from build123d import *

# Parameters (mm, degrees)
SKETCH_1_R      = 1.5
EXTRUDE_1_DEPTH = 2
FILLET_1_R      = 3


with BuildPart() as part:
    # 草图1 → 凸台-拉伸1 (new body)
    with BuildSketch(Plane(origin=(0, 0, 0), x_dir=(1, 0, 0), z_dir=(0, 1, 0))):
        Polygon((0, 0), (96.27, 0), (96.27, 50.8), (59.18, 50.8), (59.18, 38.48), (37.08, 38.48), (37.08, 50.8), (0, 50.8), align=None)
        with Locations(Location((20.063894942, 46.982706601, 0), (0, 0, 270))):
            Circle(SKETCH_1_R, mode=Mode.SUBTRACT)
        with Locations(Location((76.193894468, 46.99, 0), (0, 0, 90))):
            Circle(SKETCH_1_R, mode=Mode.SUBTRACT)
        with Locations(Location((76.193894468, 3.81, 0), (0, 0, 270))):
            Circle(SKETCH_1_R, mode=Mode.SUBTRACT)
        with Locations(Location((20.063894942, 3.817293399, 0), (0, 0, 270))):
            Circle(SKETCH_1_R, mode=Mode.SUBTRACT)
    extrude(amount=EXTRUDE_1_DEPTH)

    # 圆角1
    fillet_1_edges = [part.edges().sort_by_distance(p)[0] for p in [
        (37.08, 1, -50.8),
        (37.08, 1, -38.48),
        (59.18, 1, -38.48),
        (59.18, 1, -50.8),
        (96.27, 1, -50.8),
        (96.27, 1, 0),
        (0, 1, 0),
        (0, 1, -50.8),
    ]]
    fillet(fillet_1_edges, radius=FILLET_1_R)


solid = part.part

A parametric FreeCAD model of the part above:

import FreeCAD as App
import Part
import Sketcher
Q = App.Units.Quantity


def edges_at(feature, points):
    """Names of the edges that pass closest to the given points."""
    edges = feature.Shape.Edges
    near = lambda p: min(range(len(edges)), key=lambda i: edges[i].distToShape(Part.Vertex(*p))[0])
    return sorted({f"Edge{near(p) + 1}" for p in points})

doc = App.newDocument("Part")
body = doc.addObject("PartDesign::Body", "Body")

# Sketch on XZ plane
sketch1 = body.newObject("Sketcher::SketchObject", "Sketch")
sketch1.AttachmentSupport = (doc.getObject("XZ_Plane"), [""])
sketch1.MapMode = "FlatFace"
sketch1.addGeometry([
    Part.LineSegment(App.Vector(0, 0, 0), App.Vector(96.27, 0, 0)),  # 0
    Part.LineSegment(App.Vector(96.27, 0, 0), App.Vector(96.27, -50.8, 0)),  # 1
    Part.LineSegment(App.Vector(96.27, -50.8, 0), App.Vector(59.18, -50.8, 0)),  # 2
    Part.LineSegment(App.Vector(59.18, -50.8, 0), App.Vector(59.18, -38.48, 0)),  # 3
    Part.LineSegment(App.Vector(59.18, -38.48, 0), App.Vector(37.08, -38.48, 0)),  # 4
    Part.LineSegment(App.Vector(37.08, -38.48, 0), App.Vector(37.08, -50.8, 0)),  # 5
    Part.LineSegment(App.Vector(37.08, -50.8, 0), App.Vector(0, -50.8, 0)),  # 6
    Part.LineSegment(App.Vector(0, -50.8, 0), App.Vector(0, 0, 0)),  # 7
    Part.Circle(App.Vector(20.063895, -3.817293, 0), App.Vector(0, 0, 1), 1.5),  # 8
    Part.Circle(App.Vector(76.193894, -3.81, 0), App.Vector(0, 0, 1), 1.5),  # 9
    Part.Circle(App.Vector(20.063895, -46.982707, 0), App.Vector(0, 0, 1), 1.5),  # 10
    Part.Circle(App.Vector(76.193894, -46.99, 0), App.Vector(0, 0, 1), 1.5),  # 11
], False)
sketch1.addConstraint([
    Sketcher.Constraint("Coincident", 0, 2, 1, 1),
    Sketcher.Constraint("Coincident", 1, 2, 2, 1),
    Sketcher.Constraint("Coincident", 2, 2, 3, 1),
    Sketcher.Constraint("Coincident", 3, 2, 4, 1),
    Sketcher.Constraint("Coincident", 4, 2, 5, 1),
    Sketcher.Constraint("Coincident", 5, 2, 6, 1),
    Sketcher.Constraint("Coincident", 6, 2, 7, 1),
    Sketcher.Constraint("Coincident", 7, 2, 0, 1),
    Sketcher.Constraint("Horizontal", 0),
    Sketcher.Constraint("Vertical", 1),
    Sketcher.Constraint("Horizontal", 2),
    Sketcher.Constraint("Vertical", 3),
    Sketcher.Constraint("Horizontal", 4),
    Sketcher.Constraint("Vertical", 5),
    Sketcher.Constraint("Horizontal", 6),
    Sketcher.Constraint("Vertical", 7),
    Sketcher.Constraint("Coincident", 7, 2, -1, 1),
    Sketcher.Constraint("Equal", 8, 9),
    Sketcher.Constraint("Equal", 9, 10),
    Sketcher.Constraint("Equal", 10, 11),
    Sketcher.Constraint("Horizontal", 2, 2, 5, 2),
    Sketcher.Constraint("Vertical", 8, 3, 10, 3),
    Sketcher.Constraint("Vertical", 9, 3, 11, 3),
    Sketcher.Constraint("Diameter", 8, Q("3 mm")),
    Sketcher.Constraint("DistanceX", 4, 2, 4, 1, Q("22.1 mm")),
    Sketcher.Constraint("DistanceY", 1, 2, 1, 1, Q("50.8 mm")),
    Sketcher.Constraint("DistanceX", 0, 1, 0, 2, Q("96.27 mm")),
    Sketcher.Constraint("DistanceX", 2, 2, 2, 1, Q("37.09 mm")),
    Sketcher.Constraint("DistanceY", 3, 1, 3, 2, Q("12.32 mm")),
    Sketcher.Constraint("DistanceY", 9, 3, -1, 1, Q("3.81 mm")),
    Sketcher.Constraint("DistanceY", 11, 3, -1, 1, Q("46.99 mm")),
    Sketcher.Constraint("DistanceX", 8, 3, 9, 3, Q("56.13 mm")),
    Sketcher.Constraint("DistanceX", -1, 1, 8, 3, Q("20.063895 mm")),
    Sketcher.Constraint("DistanceY", 8, 3, -1, 1, Q("3.817293 mm")),
    Sketcher.Constraint("DistanceY", 10, 3, -1, 1, Q("46.982707 mm")),
])
pad1 = body.newObject("PartDesign::Pad", "Pad")
pad1.Profile = sketch1
pad1.Length = 2
pad1.Reversed = True
doc.recompute()

fillet = body.newObject("PartDesign::Fillet", "Fillet")
fillet.Base = (pad1, edges_at(pad1, [
    (37.08, 1, -50.8),
    (37.08, 1, -38.48),
    (59.18, 1, -38.48),
    (59.18, 1, -50.8),
    (96.27, 1, -50.8),
    (96.27, 1, 0),
    (0, 1, 0),
    (0, 1, -50.8),
]))
fillet.Radius = 3

doc.recompute()
